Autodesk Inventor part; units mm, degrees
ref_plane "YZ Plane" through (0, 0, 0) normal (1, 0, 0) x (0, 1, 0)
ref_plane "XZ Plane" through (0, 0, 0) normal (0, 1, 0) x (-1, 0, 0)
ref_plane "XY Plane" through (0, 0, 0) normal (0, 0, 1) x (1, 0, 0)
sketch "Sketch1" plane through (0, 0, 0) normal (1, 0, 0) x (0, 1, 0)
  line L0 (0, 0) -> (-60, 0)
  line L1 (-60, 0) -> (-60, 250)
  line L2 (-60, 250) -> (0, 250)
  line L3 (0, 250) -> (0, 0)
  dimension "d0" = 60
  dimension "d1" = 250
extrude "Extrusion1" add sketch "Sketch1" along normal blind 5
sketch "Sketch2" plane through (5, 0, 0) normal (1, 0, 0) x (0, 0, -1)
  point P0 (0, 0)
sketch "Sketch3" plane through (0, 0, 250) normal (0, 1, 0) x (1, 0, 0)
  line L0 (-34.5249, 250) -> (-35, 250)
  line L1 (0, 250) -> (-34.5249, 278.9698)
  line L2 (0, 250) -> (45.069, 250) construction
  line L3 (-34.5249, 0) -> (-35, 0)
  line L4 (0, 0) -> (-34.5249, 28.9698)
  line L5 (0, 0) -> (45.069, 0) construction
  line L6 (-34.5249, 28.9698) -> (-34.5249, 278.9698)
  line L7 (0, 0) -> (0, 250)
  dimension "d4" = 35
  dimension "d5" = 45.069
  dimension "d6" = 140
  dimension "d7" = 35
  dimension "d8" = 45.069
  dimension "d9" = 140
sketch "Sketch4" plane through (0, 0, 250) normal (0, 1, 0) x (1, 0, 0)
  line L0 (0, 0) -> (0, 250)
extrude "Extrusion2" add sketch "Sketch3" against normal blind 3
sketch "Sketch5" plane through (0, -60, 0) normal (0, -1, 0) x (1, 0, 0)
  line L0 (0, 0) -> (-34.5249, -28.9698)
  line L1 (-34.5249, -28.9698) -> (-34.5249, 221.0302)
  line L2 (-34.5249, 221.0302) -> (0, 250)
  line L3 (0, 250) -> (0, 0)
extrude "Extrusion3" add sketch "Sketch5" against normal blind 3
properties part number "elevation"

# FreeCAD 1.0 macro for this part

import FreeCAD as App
import Part
import Sketcher

V = App.Vector
Q = App.Units.Quantity


def add_polygon(sketch, points):
    """Adds a closed chain of lines whose ends are joined by coincident constraints."""
    first, n = sketch.GeometryCount, len(points)
    for a, b in zip(points, points[1:] + points[:1]):
        sketch.addGeometry(Part.LineSegment(App.Vector(*a, 0), App.Vector(*b, 0)), False)
    for i in range(n):
        sketch.addConstraint(Sketcher.Constraint("Coincident", first + i, 2, first + (i + 1) % n, 1))

doc = App.newDocument("Part")
body = doc.addObject("PartDesign::Body", "Body")

# Sketch on YZ plane
sketch1 = body.newObject("Sketcher::SketchObject", "Sketch")
sketch1.AttachmentSupport = (doc.getObject("YZ_Plane"), [""])
sketch1.MapMode = "FlatFace"
add_polygon(sketch1, [(-60, 0), (0, 0), (0, 250), (-60, 250)])  # lines 0-3
sketch1.addConstraint([
    Sketcher.Constraint("Horizontal", 0),
    Sketcher.Constraint("Vertical", 1),
    Sketcher.Constraint("Horizontal", 2),
    Sketcher.Constraint("Vertical", 3),
    Sketcher.Constraint("Coincident", 0, 2, -1, 1),
    Sketcher.Constraint("DistanceX", 0, 1, 0, 2, 60.0),
    Sketcher.Constraint("DistanceY", 1, 1, 1, 2, 250.0),
])
pad1 = body.newObject("PartDesign::Pad", "Pad")
pad1.Profile = sketch1
pad1.Length = 5

# Sketch on XZ plane
sketch2 = body.newObject("Sketcher::SketchObject", "Sketch001")
sketch2.AttachmentSupport = (doc.getObject("XZ_Plane"), [""])
sketch2.MapMode = "FlatFace"
add_polygon(sketch2, [(0, 250), (0, 0), (-35, -29), (-35, 221)])  # lines 0-3
sketch2.addConstraint([
    Sketcher.Constraint("Vertical", 0),
    Sketcher.Constraint("Vertical", 2),
    Sketcher.Constraint("Coincident", 0, 2, -1, 1),
    Sketcher.Constraint("Parallel", 1, 3),
    Sketcher.Constraint("Angle", 1, Q("-140 deg")),
    Sketcher.Constraint("DistanceY", 0, 2, 0, 1, 250.0),
    Sketcher.Constraint("Distance", 1, 45.069),
])
pad2 = body.newObject("PartDesign::Pad", "Pad001")
pad2.Profile = sketch2
pad2.Length = 3

# Sketch on XZ plane
sketch3 = body.newObject("Sketcher::SketchObject", "Sketch002")
sketch3.AttachmentSupport = (doc.getObject("XZ_Plane"), [""])
sketch3.MapMode = "FlatFace"
sketch3.AttachmentOffset = App.Placement(V(0, 0, 60), App.Rotation())
add_polygon(sketch3, [(-35, -29), (0, 0), (0, 250), (-35, 221)])  # lines 0-3
sketch3.addConstraint([
    Sketcher.Constraint("Vertical", 1),
    Sketcher.Constraint("Vertical", 3),
    Sketcher.Constraint("Coincident", 0, 2, -1, 1),
    Sketcher.Constraint("Parallel", 0, 2),
    Sketcher.Constraint("DistanceY", 1, 1, 1, 2, 250.0),
    Sketcher.Constraint("Angle", 0, Q("40 deg")),
    Sketcher.Constraint("Distance", 0, 45.069),
])
pad3 = body.newObject("PartDesign::Pad", "Pad002")
pad3.Profile = sketch3
pad3.Length = 3
pad3.Reversed = True

doc.recompute()
